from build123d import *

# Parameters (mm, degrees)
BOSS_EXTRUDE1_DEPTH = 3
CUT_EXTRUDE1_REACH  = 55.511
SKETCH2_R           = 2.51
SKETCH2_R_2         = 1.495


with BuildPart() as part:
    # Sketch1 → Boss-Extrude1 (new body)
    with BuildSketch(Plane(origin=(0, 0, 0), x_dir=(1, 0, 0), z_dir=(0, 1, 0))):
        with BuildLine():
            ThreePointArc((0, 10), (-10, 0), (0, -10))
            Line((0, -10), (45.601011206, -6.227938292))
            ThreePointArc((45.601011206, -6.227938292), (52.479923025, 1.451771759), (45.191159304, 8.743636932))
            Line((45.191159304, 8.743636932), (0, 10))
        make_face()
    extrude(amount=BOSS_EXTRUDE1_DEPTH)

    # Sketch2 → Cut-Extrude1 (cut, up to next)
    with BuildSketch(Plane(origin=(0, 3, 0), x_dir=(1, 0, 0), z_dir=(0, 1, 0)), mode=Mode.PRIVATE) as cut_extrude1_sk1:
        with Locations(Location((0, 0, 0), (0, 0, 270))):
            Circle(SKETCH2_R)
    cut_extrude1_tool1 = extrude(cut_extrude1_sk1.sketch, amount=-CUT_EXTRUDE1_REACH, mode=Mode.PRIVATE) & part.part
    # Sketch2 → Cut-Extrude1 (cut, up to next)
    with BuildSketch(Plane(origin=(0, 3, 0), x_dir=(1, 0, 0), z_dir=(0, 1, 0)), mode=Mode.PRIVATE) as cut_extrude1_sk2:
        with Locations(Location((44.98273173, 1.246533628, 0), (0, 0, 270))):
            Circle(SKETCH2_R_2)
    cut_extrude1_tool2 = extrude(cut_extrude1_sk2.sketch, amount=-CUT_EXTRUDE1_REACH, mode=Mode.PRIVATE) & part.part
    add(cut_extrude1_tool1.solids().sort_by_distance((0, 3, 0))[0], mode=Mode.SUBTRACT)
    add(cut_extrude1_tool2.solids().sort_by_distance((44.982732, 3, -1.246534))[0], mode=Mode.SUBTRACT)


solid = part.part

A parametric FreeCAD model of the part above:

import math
import FreeCAD as App
import Part
import Sketcher
from FreeCAD import Vector

doc = App.newDocument("Part")
body = doc.addObject("PartDesign::Body", "Body")

# Sketch on XZ plane
sketch1 = body.newObject("Sketcher::SketchObject", "Sketch")
sketch1.AttachmentSupport = (doc.getObject("XZ_Plane"), [""])
sketch1.MapMode = "FlatFace"
sketch1.addGeometry([
    Part.ArcOfCircle(Part.Circle(Vector(0, 0, 0), Vector(0, 0, 1), 10), math.radians(90), math.radians(270)),
    Part.LineSegment(Vector(0, 10, 0), Vector(46, 6, 0)),
    Part.ArcOfCircle(Part.Circle(Vector(45, -1, 0), Vector(0, 0, 1), 8), math.radians(-88), math.radians(85)),
    Part.LineSegment(Vector(45, -9, 0), Vector(0, -10, 0)),
], False)
sketch1.addConstraint([
    Sketcher.Constraint("Coincident", 0, 1, 1, 1),
    Sketcher.Constraint("Tangent", 1, 2, 2, 2),
    Sketcher.Constraint("Tangent", 2, 1, 3, 1),
    Sketcher.Constraint("Coincident", 3, 2, 0, 2),
    Sketcher.Constraint("Coincident", 0, 3, -1, 1),
    Sketcher.Constraint("PointOnObject", 0, 1, -2),
    Sketcher.Constraint("PointOnObject", 3, 2, -2),
    Sketcher.Constraint("Radius", 0, 10.0),
    Sketcher.Constraint("Radius", 2, 7.5),
    Sketcher.Constraint("Distance", 3, 45.20862),
    Sketcher.Constraint("DistanceX", -1, 1, 2, 3, 44.982732),
])
pad1 = body.newObject("PartDesign::Pad", "Pad")
pad1.Profile = sketch1
pad1.Length = 3
pad1.Reversed = True

# Sketch on XZ plane
sketch2 = body.newObject("Sketcher::SketchObject", "Sketch001")
sketch2.AttachmentSupport = (doc.getObject("XZ_Plane"), [""])
sketch2.MapMode = "FlatFace"
sketch2.AttachmentOffset = App.Placement(Vector(0, 0, -3), App.Rotation())
sketch2.addGeometry(Part.Circle(Vector(0, 0, 0), Vector(0, 0, 1), 2.5), False)
sketch2.addConstraint([
    Sketcher.Constraint("Coincident", 0, 3, -1, 1),
    Sketcher.Constraint("Diameter", 0, 5.02),
])
pocket1 = body.newObject("PartDesign::Pocket", "Pocket")
pocket1.Profile = sketch2
pocket1.Type = "UpToFirst"
pocket1.Reversed = True

# Sketch on XZ plane
sketch3 = body.newObject("Sketcher::SketchObject", "Sketch002")
sketch3.AttachmentSupport = (doc.getObject("XZ_Plane"), [""])
sketch3.MapMode = "FlatFace"
sketch3.AttachmentOffset = App.Placement(Vector(0, 0, -3), App.Rotation())
sketch3.addGeometry(Part.Circle(Vector(45, -1.2, 0), Vector(0, 0, 1), 1.5), False)
sketch3.addConstraint([
    Sketcher.Constraint("Diameter", 0, 2.99),
    Sketcher.Constraint("DistanceX", -1, 1, 0, 3, 44.982732),
    Sketcher.Constraint("DistanceY", 0, 3, -1, 1, 1.246534),
])
pocket2 = body.newObject("PartDesign::Pocket", "Pocket001")
pocket2.Profile = sketch3
pocket2.Type = "UpToFirst"
pocket2.Reversed = True

doc.recompute()
